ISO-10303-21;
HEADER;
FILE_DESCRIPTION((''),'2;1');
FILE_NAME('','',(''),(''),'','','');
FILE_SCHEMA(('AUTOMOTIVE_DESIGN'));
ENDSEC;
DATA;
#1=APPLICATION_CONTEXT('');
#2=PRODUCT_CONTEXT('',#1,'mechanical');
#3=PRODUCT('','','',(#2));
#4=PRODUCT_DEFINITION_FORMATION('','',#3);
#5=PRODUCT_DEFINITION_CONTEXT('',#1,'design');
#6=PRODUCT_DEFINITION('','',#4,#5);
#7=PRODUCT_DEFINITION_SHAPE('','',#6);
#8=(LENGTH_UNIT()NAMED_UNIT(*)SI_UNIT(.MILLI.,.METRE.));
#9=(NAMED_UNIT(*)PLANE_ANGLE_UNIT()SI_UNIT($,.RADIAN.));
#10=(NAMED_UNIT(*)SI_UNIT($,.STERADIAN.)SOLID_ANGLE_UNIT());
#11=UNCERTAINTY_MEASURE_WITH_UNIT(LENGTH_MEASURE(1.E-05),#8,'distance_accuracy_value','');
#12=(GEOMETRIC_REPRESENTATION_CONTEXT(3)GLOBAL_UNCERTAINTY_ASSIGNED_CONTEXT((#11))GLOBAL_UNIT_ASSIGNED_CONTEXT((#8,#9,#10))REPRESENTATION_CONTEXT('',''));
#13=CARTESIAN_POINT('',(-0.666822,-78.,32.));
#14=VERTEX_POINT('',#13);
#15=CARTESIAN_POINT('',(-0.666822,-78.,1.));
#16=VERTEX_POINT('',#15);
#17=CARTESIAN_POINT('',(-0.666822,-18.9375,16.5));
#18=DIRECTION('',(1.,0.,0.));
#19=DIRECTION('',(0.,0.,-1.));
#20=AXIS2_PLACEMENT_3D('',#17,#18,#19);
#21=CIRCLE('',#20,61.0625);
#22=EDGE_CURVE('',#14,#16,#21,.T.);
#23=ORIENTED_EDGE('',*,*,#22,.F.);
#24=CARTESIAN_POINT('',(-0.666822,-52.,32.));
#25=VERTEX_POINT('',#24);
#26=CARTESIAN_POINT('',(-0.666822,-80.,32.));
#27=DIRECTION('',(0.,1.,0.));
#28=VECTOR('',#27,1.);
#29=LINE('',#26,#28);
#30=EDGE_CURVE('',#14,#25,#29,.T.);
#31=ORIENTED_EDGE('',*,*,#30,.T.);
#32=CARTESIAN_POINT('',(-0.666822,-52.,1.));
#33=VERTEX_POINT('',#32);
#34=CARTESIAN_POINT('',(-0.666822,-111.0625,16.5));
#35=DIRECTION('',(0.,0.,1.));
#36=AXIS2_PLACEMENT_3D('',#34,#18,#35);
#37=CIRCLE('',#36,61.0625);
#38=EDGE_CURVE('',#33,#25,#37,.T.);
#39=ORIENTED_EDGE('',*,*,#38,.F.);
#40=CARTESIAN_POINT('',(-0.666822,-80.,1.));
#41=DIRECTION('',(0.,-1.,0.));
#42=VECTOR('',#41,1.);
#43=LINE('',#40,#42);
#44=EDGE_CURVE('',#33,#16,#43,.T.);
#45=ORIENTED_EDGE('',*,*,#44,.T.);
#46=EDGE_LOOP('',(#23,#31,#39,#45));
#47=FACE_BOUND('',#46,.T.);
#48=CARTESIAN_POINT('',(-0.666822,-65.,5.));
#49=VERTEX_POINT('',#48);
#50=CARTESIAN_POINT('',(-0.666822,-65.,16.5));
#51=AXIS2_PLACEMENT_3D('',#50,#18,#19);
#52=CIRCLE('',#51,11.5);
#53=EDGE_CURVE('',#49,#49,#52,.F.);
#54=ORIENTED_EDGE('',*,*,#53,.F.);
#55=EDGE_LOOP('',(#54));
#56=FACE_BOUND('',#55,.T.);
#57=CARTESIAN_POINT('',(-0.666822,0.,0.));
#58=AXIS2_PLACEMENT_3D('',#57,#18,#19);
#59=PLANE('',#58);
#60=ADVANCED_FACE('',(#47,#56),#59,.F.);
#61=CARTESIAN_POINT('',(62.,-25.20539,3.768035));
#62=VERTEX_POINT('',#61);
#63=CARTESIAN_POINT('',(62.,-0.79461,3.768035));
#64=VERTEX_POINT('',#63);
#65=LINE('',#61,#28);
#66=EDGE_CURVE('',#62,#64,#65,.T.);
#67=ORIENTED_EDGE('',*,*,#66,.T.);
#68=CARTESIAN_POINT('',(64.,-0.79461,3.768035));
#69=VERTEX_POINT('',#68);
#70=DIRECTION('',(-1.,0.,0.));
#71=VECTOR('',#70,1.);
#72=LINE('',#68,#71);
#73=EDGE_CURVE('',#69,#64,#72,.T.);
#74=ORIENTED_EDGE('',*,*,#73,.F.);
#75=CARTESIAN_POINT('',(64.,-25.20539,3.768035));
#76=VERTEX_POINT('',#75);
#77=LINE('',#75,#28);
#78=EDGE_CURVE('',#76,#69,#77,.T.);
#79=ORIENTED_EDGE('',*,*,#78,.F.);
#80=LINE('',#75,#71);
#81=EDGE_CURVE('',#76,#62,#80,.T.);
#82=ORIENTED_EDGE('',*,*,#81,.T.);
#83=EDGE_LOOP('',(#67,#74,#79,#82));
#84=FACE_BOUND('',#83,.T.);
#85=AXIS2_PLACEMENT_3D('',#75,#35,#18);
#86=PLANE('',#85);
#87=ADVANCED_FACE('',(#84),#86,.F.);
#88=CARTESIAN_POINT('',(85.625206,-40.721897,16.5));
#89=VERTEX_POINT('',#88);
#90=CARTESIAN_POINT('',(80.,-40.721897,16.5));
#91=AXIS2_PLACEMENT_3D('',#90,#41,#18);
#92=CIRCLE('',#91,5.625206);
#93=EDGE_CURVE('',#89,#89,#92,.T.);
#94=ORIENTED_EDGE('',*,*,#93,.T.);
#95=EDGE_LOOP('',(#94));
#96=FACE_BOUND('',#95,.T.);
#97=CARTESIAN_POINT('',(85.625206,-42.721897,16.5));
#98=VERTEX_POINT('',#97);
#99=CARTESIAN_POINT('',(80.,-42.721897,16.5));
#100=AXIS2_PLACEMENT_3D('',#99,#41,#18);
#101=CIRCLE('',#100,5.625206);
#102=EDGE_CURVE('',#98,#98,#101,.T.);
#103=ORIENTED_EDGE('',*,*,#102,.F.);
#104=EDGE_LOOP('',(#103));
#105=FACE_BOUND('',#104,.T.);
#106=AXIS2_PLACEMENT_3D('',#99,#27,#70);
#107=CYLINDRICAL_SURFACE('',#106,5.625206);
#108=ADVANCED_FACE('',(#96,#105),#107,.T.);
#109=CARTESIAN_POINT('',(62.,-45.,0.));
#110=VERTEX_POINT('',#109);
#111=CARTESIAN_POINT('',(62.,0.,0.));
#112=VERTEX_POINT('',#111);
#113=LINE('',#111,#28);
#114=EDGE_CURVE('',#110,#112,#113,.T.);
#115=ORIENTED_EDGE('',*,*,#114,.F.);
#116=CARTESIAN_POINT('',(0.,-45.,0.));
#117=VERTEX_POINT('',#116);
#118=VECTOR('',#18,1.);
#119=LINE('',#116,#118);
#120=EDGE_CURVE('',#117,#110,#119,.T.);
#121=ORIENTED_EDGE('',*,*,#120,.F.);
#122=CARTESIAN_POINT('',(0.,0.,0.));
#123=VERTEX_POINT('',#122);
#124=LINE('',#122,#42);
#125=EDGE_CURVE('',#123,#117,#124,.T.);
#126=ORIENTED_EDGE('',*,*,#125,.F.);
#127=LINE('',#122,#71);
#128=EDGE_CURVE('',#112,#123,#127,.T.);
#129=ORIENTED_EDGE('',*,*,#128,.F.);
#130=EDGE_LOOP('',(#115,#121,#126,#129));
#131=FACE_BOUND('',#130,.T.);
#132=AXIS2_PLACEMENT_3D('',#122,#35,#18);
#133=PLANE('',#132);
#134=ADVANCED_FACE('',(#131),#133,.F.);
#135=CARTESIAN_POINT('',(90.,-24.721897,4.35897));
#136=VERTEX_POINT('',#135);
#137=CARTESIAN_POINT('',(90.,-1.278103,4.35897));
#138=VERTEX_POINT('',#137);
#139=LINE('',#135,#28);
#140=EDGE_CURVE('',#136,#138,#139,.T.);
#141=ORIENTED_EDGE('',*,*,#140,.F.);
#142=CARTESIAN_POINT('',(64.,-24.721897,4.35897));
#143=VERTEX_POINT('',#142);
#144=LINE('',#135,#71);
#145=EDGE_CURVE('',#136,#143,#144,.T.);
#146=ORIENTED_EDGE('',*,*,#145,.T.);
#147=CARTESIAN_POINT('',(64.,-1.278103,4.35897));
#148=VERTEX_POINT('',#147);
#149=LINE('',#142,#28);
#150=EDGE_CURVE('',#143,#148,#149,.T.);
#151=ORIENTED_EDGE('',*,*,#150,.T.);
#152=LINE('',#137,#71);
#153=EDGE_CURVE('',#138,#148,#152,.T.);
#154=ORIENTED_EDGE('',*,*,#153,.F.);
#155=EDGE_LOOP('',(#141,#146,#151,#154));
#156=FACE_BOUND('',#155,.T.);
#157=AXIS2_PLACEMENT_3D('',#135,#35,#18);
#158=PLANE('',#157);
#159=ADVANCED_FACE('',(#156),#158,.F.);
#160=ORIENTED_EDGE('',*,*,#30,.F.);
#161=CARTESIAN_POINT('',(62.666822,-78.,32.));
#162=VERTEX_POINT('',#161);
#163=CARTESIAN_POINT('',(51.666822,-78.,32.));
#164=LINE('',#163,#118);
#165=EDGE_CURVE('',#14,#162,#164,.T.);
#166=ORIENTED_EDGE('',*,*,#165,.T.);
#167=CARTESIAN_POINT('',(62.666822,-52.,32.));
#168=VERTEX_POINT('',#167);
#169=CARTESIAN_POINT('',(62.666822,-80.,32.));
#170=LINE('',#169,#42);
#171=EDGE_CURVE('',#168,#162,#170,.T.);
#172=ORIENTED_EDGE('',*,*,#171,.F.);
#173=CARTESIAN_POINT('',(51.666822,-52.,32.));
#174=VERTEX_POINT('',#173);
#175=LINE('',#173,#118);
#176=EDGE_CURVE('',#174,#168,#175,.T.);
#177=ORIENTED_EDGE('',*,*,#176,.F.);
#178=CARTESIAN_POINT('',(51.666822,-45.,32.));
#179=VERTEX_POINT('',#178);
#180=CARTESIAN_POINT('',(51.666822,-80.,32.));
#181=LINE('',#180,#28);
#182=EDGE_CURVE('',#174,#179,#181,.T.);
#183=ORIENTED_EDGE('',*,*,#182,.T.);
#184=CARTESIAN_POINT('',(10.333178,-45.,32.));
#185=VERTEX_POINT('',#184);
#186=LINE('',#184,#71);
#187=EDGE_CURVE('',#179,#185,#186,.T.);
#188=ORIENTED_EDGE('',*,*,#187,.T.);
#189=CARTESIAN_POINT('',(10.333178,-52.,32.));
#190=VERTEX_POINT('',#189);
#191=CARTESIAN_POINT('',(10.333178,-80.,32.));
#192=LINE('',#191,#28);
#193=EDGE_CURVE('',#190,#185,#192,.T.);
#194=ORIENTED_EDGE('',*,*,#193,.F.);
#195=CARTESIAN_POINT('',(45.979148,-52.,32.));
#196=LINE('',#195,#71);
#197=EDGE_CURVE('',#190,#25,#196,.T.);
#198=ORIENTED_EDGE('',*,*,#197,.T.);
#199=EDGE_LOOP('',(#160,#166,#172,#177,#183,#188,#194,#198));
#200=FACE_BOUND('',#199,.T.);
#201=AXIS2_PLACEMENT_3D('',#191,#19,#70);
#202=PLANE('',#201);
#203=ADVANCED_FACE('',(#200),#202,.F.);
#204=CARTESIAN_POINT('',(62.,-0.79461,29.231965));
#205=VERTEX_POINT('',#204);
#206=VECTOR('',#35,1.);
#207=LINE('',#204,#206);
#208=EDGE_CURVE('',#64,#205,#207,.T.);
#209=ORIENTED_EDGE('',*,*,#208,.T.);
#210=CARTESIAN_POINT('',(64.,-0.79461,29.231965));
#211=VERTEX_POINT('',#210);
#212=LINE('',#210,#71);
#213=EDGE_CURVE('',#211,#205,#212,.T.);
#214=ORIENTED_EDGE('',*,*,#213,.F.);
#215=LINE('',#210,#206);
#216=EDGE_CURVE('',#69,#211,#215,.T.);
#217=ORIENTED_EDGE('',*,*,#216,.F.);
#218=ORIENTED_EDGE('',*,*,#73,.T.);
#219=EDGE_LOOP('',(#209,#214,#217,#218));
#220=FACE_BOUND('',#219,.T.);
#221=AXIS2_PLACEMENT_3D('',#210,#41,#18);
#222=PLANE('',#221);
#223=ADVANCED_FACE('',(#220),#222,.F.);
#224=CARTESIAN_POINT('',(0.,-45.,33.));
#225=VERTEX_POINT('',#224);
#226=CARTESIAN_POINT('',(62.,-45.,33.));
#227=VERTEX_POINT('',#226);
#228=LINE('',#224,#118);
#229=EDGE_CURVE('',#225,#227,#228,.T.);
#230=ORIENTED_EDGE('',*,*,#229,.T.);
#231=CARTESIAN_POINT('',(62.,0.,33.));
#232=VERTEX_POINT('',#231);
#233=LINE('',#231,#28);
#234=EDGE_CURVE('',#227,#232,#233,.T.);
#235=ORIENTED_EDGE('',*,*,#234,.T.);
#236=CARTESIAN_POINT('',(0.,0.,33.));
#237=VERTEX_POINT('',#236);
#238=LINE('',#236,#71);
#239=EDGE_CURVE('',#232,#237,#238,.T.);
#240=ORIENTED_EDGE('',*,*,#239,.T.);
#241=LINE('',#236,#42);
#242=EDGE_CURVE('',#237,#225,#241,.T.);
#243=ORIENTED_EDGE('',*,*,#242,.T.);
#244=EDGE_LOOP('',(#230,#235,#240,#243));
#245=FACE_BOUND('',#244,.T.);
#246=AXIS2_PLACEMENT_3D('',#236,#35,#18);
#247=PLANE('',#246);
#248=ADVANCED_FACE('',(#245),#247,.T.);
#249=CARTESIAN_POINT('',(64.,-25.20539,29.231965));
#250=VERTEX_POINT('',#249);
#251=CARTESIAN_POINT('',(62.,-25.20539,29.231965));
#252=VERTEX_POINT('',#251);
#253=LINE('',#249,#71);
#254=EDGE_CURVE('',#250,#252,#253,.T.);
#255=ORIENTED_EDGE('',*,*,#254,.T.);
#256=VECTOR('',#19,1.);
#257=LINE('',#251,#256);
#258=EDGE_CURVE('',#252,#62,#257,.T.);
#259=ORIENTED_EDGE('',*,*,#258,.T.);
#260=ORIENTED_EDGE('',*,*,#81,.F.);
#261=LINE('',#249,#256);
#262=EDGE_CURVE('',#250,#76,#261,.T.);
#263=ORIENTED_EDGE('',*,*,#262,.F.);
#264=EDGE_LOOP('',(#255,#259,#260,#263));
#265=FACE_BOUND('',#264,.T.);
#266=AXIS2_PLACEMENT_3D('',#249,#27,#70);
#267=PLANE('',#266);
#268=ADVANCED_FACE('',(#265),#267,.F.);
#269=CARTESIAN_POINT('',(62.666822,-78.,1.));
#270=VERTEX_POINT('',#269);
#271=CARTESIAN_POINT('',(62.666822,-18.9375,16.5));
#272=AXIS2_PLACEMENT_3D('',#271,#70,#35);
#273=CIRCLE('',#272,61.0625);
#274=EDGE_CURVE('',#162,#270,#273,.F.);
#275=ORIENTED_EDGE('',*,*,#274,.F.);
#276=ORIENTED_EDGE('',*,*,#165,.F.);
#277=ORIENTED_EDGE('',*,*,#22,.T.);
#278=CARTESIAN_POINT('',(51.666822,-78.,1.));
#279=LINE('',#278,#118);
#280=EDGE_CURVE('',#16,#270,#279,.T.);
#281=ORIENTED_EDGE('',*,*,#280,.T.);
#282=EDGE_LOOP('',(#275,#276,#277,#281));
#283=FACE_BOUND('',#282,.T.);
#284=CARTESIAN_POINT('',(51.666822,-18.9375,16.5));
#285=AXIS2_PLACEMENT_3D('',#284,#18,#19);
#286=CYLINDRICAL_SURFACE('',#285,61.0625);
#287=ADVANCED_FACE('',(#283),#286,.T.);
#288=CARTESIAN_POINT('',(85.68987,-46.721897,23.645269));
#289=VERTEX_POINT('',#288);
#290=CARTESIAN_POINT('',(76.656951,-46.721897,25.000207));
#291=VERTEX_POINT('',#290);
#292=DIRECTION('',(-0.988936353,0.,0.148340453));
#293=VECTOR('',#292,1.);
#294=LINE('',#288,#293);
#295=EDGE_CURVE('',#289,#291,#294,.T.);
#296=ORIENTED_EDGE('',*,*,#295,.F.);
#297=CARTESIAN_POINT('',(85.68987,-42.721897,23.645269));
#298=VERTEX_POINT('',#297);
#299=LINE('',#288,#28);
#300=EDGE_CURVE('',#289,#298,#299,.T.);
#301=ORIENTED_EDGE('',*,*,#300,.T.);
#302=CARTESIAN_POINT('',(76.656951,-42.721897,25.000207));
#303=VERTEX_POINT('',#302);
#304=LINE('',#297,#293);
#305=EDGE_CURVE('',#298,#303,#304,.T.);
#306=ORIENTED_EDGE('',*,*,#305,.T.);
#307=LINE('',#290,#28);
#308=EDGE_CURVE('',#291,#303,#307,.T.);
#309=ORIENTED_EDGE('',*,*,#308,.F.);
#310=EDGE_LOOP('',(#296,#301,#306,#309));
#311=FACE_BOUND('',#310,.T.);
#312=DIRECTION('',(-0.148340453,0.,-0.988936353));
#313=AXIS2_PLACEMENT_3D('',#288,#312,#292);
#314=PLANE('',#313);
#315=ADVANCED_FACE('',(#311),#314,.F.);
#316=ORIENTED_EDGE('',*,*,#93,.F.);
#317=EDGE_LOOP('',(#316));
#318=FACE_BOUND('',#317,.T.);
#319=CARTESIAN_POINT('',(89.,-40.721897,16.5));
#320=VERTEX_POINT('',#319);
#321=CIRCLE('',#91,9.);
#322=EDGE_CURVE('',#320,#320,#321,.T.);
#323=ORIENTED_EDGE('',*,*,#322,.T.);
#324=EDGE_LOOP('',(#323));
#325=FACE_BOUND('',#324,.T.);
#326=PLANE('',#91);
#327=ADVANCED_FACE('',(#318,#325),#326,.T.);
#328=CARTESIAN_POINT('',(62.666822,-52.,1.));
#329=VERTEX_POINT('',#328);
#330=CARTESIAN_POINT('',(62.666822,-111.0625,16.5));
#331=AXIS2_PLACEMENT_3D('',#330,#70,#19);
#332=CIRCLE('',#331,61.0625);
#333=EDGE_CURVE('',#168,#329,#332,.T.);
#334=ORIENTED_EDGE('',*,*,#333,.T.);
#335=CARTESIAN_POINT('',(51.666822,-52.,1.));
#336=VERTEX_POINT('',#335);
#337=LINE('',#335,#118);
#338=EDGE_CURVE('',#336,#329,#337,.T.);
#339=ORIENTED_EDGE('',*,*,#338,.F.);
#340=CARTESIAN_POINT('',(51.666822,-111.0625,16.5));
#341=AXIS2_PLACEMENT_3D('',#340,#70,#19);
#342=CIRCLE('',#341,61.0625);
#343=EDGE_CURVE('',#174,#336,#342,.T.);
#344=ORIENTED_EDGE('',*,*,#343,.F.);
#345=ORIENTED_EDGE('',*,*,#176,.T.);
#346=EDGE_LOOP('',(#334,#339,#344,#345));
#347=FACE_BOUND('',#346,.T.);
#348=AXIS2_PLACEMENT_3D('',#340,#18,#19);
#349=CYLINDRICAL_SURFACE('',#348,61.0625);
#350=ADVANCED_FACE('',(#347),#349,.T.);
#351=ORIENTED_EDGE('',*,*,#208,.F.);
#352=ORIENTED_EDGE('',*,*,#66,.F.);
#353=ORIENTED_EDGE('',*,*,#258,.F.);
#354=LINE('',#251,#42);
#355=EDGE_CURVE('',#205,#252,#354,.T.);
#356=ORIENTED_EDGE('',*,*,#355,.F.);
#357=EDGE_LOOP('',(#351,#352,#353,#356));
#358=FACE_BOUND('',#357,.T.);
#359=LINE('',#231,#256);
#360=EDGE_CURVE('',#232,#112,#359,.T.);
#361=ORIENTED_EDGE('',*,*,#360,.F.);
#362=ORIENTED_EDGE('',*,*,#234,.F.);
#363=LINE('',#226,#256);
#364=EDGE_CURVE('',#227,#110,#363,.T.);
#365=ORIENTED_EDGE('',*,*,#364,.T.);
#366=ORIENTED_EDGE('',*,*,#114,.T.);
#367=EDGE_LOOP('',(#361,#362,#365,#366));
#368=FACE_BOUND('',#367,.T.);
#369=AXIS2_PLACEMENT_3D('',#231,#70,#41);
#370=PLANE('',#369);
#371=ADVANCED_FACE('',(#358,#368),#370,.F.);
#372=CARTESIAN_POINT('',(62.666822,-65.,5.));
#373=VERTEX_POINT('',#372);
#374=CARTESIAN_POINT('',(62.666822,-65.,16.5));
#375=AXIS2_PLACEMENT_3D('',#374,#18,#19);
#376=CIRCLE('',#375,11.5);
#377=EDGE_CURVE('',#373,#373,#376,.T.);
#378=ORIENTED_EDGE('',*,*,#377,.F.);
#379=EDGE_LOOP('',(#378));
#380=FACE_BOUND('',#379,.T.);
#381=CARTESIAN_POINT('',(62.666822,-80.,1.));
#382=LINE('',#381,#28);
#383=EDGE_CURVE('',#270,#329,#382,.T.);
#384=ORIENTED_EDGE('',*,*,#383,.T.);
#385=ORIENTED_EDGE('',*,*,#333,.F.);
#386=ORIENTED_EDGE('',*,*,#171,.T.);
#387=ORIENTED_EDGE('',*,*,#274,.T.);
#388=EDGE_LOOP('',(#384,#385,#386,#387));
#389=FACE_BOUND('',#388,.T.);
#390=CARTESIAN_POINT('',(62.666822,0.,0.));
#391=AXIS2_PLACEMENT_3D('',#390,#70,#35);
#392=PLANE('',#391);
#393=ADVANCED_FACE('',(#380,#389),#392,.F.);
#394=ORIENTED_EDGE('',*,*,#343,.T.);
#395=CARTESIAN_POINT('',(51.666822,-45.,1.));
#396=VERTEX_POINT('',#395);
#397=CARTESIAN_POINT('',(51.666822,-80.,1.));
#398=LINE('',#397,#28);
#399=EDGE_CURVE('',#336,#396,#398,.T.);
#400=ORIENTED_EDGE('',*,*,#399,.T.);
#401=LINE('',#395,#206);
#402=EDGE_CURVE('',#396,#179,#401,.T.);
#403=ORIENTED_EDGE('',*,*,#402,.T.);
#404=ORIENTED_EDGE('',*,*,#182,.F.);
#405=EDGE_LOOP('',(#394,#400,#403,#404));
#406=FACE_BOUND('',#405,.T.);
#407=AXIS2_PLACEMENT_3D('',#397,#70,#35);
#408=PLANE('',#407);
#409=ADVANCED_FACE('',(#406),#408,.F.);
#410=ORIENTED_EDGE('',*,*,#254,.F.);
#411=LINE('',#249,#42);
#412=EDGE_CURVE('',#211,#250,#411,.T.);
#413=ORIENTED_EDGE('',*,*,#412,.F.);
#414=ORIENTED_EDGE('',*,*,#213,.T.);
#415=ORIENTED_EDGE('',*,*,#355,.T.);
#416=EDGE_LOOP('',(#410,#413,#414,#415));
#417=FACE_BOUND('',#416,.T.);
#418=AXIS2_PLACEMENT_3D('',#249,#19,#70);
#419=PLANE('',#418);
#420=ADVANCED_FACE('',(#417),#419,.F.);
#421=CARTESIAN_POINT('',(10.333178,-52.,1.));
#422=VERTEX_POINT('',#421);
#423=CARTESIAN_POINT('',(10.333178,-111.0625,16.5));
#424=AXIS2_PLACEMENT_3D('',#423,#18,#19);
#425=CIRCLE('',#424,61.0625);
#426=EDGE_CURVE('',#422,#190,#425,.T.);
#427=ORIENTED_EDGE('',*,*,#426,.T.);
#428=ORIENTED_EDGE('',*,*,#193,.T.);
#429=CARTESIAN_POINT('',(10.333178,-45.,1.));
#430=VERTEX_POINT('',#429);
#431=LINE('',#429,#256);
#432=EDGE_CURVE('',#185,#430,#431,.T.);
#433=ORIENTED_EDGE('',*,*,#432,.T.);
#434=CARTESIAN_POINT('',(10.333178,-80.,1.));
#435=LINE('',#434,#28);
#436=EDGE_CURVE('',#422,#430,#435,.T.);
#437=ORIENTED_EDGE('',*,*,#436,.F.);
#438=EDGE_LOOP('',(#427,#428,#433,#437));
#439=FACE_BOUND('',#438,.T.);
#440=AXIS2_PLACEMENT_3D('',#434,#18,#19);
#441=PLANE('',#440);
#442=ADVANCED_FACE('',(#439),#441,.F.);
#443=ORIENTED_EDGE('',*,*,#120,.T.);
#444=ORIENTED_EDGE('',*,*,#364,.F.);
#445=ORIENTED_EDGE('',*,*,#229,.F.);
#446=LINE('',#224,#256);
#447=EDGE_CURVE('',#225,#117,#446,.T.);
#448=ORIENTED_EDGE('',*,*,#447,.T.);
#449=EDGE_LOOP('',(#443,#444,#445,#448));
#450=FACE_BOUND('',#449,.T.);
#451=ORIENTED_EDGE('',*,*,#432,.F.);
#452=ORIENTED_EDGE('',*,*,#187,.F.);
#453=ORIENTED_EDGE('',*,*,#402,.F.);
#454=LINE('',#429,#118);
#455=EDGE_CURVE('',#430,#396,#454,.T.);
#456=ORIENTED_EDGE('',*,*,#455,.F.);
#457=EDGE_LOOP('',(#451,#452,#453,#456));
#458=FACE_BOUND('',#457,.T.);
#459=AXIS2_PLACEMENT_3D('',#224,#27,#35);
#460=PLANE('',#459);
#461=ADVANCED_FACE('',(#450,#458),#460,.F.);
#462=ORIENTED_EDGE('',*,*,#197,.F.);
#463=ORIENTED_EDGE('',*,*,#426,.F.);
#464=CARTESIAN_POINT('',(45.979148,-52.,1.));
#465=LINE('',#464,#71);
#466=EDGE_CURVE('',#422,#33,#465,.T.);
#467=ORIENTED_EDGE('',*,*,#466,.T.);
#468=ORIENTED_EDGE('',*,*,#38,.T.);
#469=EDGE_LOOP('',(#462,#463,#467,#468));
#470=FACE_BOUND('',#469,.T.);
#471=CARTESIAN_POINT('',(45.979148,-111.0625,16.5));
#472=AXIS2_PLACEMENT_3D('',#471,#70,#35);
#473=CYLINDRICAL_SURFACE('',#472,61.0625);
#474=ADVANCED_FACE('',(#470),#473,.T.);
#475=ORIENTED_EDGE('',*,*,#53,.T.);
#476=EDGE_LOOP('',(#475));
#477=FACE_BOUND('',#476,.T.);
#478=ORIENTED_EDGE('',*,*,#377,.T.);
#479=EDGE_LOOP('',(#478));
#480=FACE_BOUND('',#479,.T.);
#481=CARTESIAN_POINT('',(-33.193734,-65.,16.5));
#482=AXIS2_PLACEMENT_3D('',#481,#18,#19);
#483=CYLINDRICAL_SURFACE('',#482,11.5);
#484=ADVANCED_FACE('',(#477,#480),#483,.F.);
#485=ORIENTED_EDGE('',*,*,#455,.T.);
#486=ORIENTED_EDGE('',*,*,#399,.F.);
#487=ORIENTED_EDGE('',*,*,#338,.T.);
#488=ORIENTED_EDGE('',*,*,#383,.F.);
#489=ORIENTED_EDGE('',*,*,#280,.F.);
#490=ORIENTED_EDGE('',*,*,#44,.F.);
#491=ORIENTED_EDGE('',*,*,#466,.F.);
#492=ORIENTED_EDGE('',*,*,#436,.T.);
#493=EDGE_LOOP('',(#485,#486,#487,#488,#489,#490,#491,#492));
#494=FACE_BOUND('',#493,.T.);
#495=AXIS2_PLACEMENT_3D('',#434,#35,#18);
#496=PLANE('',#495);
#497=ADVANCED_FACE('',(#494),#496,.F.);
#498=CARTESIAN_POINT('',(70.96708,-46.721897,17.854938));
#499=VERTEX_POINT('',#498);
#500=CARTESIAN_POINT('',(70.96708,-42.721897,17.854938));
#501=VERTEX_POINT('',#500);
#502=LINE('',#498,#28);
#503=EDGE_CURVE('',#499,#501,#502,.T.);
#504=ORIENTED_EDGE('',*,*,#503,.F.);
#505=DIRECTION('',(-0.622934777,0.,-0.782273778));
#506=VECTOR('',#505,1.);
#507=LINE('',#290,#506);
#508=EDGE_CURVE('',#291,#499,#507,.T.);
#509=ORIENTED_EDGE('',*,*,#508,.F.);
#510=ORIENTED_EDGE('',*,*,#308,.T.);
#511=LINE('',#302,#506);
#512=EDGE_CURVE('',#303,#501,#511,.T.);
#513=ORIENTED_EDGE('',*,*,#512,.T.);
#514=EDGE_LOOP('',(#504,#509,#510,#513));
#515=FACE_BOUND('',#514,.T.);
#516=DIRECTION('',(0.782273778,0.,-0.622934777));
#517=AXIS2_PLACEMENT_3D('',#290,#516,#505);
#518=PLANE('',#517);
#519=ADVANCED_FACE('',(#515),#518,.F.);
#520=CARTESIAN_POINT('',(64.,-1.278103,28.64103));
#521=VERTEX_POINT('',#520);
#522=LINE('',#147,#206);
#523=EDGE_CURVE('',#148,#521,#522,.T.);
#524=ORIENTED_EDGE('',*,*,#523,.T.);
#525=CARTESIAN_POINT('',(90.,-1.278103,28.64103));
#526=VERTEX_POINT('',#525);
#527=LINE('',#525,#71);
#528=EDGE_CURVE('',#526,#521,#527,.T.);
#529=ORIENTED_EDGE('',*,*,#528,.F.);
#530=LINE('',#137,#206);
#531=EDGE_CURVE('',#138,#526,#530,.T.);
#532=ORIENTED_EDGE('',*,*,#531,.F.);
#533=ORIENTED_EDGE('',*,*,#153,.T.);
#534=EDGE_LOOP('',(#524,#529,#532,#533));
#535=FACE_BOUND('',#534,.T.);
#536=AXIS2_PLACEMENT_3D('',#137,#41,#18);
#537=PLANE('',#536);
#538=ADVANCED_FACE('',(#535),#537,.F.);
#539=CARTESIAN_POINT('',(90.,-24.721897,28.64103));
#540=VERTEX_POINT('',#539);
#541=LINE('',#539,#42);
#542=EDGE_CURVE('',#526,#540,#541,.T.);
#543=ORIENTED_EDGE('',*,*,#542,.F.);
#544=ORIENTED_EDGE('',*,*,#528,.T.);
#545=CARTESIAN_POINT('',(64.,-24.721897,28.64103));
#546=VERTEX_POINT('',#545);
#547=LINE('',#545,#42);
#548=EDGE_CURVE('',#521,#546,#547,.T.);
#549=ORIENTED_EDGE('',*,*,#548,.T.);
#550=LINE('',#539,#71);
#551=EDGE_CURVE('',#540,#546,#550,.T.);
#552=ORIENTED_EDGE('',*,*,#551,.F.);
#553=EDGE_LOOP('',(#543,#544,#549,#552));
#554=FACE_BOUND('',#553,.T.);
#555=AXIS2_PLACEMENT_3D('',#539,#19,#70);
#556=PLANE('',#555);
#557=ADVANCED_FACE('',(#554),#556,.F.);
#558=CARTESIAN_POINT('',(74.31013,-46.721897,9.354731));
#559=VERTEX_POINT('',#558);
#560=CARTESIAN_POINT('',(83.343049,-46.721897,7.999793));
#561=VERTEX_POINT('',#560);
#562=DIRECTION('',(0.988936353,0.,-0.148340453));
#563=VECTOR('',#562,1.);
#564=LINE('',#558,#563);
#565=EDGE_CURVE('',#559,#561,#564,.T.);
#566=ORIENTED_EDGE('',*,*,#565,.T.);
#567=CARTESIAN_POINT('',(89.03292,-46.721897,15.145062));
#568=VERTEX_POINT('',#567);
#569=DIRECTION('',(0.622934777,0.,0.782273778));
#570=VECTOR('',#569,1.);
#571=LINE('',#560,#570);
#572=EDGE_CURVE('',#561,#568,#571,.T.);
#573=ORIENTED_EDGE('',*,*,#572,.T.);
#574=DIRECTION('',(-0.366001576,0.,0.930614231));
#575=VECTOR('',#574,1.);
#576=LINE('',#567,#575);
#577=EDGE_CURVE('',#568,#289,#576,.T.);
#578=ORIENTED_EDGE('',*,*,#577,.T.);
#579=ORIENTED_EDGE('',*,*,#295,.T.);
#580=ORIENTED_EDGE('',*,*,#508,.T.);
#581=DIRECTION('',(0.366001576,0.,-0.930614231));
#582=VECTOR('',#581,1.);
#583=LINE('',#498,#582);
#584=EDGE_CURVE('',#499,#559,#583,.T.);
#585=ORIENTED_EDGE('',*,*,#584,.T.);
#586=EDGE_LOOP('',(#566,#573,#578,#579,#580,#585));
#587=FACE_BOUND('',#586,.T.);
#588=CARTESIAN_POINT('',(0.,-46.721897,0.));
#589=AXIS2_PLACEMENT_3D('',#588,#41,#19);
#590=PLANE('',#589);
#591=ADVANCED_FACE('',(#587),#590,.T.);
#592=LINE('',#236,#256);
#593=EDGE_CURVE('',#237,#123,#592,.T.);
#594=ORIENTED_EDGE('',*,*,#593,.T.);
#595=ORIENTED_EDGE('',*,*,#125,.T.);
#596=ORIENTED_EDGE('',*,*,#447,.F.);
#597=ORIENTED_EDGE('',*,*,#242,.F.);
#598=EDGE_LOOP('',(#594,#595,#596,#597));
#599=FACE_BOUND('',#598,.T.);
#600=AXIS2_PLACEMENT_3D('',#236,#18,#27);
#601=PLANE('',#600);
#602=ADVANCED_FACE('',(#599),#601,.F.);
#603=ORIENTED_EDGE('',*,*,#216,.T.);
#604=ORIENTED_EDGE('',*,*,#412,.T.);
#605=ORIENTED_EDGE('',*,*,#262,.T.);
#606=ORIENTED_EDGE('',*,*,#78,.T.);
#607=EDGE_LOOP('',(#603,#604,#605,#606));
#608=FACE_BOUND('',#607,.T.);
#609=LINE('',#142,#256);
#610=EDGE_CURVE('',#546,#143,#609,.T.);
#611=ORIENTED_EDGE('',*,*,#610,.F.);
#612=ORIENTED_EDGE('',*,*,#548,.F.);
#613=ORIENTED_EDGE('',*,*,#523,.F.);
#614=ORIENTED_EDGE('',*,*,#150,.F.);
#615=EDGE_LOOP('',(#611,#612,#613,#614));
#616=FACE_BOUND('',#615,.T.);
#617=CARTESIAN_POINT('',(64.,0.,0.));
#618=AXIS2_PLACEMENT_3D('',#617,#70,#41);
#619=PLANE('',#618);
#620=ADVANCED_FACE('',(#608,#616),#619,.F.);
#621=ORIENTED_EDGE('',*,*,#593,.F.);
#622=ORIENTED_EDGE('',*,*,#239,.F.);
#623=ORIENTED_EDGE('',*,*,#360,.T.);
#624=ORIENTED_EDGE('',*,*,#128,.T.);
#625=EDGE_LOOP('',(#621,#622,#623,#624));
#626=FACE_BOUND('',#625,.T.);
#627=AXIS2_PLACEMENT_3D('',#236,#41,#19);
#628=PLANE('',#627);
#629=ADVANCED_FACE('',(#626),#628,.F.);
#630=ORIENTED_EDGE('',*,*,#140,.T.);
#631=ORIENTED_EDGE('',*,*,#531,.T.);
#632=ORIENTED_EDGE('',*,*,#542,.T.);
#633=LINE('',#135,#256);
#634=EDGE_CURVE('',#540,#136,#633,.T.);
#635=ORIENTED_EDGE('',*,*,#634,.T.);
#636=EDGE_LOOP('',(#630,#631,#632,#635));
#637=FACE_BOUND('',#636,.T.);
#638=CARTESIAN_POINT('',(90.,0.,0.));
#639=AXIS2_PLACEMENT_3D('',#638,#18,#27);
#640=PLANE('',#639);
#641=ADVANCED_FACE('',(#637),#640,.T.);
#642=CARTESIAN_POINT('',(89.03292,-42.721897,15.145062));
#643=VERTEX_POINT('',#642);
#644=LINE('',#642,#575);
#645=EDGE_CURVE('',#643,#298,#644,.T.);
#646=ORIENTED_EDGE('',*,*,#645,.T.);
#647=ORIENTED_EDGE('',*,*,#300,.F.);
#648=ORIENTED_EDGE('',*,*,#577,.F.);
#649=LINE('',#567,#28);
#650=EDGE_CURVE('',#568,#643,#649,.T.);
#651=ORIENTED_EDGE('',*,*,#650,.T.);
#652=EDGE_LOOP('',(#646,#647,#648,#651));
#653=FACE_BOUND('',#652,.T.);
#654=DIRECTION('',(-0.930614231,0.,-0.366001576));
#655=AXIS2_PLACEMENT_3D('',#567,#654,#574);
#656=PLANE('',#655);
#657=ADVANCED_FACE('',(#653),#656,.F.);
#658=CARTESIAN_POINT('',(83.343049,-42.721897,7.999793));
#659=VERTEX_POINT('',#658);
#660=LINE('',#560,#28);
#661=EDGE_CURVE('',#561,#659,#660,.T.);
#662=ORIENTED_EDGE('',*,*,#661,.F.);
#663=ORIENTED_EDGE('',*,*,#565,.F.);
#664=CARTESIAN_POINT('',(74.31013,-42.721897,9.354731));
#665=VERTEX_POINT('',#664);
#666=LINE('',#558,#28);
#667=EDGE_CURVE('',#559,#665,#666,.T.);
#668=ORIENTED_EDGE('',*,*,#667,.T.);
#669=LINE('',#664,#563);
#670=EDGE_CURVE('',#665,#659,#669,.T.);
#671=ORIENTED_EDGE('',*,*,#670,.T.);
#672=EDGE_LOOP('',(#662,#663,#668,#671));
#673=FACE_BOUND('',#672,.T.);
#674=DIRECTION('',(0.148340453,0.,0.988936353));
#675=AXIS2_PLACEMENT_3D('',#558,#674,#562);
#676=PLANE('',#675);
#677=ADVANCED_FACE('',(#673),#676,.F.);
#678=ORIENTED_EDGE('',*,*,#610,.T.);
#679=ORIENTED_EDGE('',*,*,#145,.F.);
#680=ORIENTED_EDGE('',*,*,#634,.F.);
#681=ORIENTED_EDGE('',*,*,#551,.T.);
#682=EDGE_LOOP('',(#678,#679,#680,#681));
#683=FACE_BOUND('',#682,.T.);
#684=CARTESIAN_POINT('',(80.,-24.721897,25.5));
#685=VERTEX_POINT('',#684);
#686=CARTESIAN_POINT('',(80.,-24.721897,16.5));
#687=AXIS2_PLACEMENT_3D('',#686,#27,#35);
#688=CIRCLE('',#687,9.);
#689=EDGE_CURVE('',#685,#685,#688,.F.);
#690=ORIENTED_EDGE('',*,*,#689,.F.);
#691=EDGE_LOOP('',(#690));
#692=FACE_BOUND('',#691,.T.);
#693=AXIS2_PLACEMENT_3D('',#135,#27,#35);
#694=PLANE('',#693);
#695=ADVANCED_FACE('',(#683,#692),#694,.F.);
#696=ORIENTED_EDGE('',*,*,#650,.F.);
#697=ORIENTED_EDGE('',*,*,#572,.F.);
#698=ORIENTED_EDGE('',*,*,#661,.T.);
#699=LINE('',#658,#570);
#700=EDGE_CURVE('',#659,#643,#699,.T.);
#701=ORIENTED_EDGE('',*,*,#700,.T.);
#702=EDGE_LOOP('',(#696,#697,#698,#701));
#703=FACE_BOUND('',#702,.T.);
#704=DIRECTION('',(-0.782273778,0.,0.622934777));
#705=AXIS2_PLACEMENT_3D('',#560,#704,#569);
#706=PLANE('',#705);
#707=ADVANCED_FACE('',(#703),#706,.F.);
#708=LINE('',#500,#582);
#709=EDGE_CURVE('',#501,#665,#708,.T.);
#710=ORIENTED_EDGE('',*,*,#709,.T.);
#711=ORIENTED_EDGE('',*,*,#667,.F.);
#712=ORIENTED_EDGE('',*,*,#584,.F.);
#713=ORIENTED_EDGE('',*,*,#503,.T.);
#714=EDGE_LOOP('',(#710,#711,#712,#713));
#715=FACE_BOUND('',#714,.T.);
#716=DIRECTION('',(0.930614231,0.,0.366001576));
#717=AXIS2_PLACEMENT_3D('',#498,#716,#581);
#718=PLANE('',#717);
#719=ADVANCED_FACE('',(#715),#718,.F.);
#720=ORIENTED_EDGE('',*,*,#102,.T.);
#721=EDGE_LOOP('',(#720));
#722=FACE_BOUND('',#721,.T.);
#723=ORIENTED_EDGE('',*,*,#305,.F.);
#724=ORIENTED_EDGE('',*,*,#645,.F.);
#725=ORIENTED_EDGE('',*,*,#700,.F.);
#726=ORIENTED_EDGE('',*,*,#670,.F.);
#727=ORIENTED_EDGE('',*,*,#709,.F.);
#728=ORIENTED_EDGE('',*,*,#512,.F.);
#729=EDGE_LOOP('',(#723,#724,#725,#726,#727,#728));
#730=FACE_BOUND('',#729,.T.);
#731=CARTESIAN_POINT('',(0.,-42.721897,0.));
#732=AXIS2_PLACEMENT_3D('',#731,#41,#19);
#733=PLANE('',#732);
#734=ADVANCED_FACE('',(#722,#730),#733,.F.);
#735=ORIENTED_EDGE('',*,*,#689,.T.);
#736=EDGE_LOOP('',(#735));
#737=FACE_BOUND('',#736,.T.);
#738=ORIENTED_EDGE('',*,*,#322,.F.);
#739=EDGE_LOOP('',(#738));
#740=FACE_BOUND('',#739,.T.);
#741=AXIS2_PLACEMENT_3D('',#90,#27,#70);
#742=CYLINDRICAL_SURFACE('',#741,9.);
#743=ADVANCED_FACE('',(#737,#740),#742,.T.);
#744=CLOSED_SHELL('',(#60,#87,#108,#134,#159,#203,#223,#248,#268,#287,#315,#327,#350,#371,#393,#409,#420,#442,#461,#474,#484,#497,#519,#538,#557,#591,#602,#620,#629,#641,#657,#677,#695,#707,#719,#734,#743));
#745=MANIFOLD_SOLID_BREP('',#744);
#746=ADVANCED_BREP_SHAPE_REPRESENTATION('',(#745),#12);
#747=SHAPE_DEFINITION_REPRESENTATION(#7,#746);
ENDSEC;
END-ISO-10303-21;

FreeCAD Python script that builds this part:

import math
import FreeCAD as App
import Part
import Sketcher

V = App.Vector
Q = App.Units.Quantity

doc = App.newDocument("Part")
body = doc.addObject("PartDesign::Body", "Body")

sketch1 = body.newObject("Sketcher::SketchObject", "Sketch")
sketch1.AttachmentSupport = (doc.getObject("XY_Plane"), [""])
sketch1.MapMode = "FlatFace"
sketch1.addGeometry([
    Part.LineSegment(V(0, 0, 0), V(0, -45, 0)),
    Part.LineSegment(V(0, -45, 0), V(62, -45, 0)),
    Part.LineSegment(V(62, -45, 0), V(62, 0, 0)),
    Part.LineSegment(V(62, 0, 0), V(0, 0, 0)),
], False)
sketch1.addConstraint([
    Sketcher.Constraint("Coincident", 0, 2, 1, 1),
    Sketcher.Constraint("Coincident", 1, 2, 2, 1),
    Sketcher.Constraint("Coincident", 2, 2, 3, 1),
    Sketcher.Constraint("Coincident", 3, 2, 0, 1),
    Sketcher.Constraint("Vertical", 0),
    Sketcher.Constraint("Horizontal", 1),
    Sketcher.Constraint("Vertical", 2),
    Sketcher.Constraint("Horizontal", 3),
    Sketcher.Constraint("Coincident", 3, 2, -1, 1),
    Sketcher.Constraint("DistanceX", 1, 1, 1, 2, Q("62 mm")),
    Sketcher.Constraint("DistanceY", 0, 2, 0, 1, Q("45 mm")),
])
pad1 = body.newObject("PartDesign::Pad", "Pad")
pad1.Profile = sketch1
pad1.Length = 33

sketch2 = body.newObject("Sketcher::SketchObject", "Sketch001")
sketch2.AttachmentSupport = (doc.getObject("YZ_Plane"), [""])
sketch2.MapMode = "FlatFace"
sketch2.AttachmentOffset = App.Placement(V(0, 0, 62), App.Rotation())
sketch2.addGeometry([
    Part.LineSegment(V(-1, 29, 0), V(-25, 29, 0)),
    Part.LineSegment(V(-25, 29, 0), V(-25, 4, 0)),
    Part.LineSegment(V(-25, 4, 0), V(-1, 4, 0)),
    Part.LineSegment(V(-1, 4, 0), V(-1, 29, 0)),
], False)
sketch2.addConstraint([
    Sketcher.Constraint("Coincident", 0, 2, 1, 1),
    Sketcher.Constraint("Coincident", 1, 2, 2, 1),
    Sketcher.Constraint("Coincident", 2, 2, 3, 1),
    Sketcher.Constraint("Coincident", 3, 2, 0, 1),
    Sketcher.Constraint("Horizontal", 0),
    Sketcher.Constraint("Vertical", 1),
    Sketcher.Constraint("Horizontal", 2),
    Sketcher.Constraint("Vertical", 3),
    Sketcher.Constraint("DistanceX", 0, 2, 0, 1, Q("24.410779 mm")),
    Sketcher.Constraint("DistanceY", 1, 2, 1, 1, Q("25.463929 mm")),
    Sketcher.Constraint("DistanceX", 0, 2, -1, 1, Q("25.20539 mm")),
    Sketcher.Constraint("DistanceY", -1, 1, 0, 2, Q("29.231965 mm")),
])
pad2 = body.newObject("PartDesign::Pad", "Pad001")
pad2.Profile = sketch2
pad2.Length = 2

sketch3 = body.newObject("Sketcher::SketchObject", "Sketch002")
sketch3.AttachmentSupport = (doc.getObject("YZ_Plane"), [""])
sketch3.MapMode = "FlatFace"
sketch3.AttachmentOffset = App.Placement(V(0, 0, 64), App.Rotation())
sketch3.addGeometry([
    Part.LineSegment(V(-1, 29, 0), V(-25, 29, 0)),
    Part.LineSegment(V(-25, 29, 0), V(-25, 4, 0)),
    Part.LineSegment(V(-25, 4, 0), V(-1, 4, 0)),
    Part.LineSegment(V(-1, 4, 0), V(-1, 29, 0)),
], False)
sketch3.addConstraint([
    Sketcher.Constraint("Coincident", 0, 2, 1, 1),
    Sketcher.Constraint("Coincident", 1, 2, 2, 1),
    Sketcher.Constraint("Coincident", 2, 2, 3, 1),
    Sketcher.Constraint("Coincident", 3, 2, 0, 1),
    Sketcher.Constraint("Horizontal", 0),
    Sketcher.Constraint("Vertical", 1),
    Sketcher.Constraint("Horizontal", 2),
    Sketcher.Constraint("Vertical", 3),
    Sketcher.Constraint("DistanceY", 1, 2, 1, 1, Q("24.282059 mm")),
    Sketcher.Constraint("DistanceX", 0, 2, 0, 1, Q("23.443795 mm")),
    Sketcher.Constraint("DistanceY", -1, 1, 0, 2, Q("28.64103 mm")),
    Sketcher.Constraint("DistanceX", 0, 2, -1, 1, Q("24.721897 mm")),
])
pad3 = body.newObject("PartDesign::Pad", "Pad002")
pad3.Profile = sketch3
pad3.Length = 26

sketch4 = body.newObject("Sketcher::SketchObject", "Sketch003")
sketch4.AttachmentSupport = (doc.getObject("XZ_Plane"), [""])
sketch4.MapMode = "FlatFace"
sketch4.AttachmentOffset = App.Placement(V(0, 0, 45), App.Rotation())
sketch4.addGeometry([
    Part.LineSegment(V(10, 32, 0), V(10, 1, 0)),
    Part.LineSegment(V(10, 1, 0), V(52, 1, 0)),
    Part.LineSegment(V(52, 1, 0), V(52, 32, 0)),
    Part.LineSegment(V(52, 32, 0), V(10, 32, 0)),
], False)
sketch4.addConstraint([
    Sketcher.Constraint("Coincident", 0, 2, 1, 1),
    Sketcher.Constraint("Coincident", 1, 2, 2, 1),
    Sketcher.Constraint("Coincident", 2, 2, 3, 1),
    Sketcher.Constraint("Coincident", 3, 2, 0, 1),
    Sketcher.Constraint("Vertical", 0),
    Sketcher.Constraint("Horizontal", 1),
    Sketcher.Constraint("Vertical", 2),
    Sketcher.Constraint("Horizontal", 3),
    Sketcher.Constraint("DistanceY", 0, 2, 0, 1, Q("31 mm")),
    Sketcher.Constraint("DistanceY", -1, 1, 0, 2, Q("1 mm")),
    Sketcher.Constraint("DistanceX", 1, 1, 1, 2, Q("41.333644 mm")),
    Sketcher.Constraint("DistanceX", -1, 1, 0, 2, Q("10.333178 mm")),
])
pad4 = body.newObject("PartDesign::Pad", "Pad003")
pad4.Profile = sketch4
pad4.Length = 35

sketch5 = body.newObject("Sketcher::SketchObject", "Sketch004")
sketch5.AttachmentSupport = (doc.getObject("YZ_Plane"), [""])
sketch5.MapMode = "FlatFace"
sketch5.AttachmentOffset = App.Placement(V(0, 0, 51.666822), App.Rotation())
sketch5.addGeometry([
    Part.LineSegment(V(-50, 32, 0), V(-80, 32, 0)),
    Part.LineSegment(V(-80, 32, 0), V(-80, 1, 0)),
    Part.LineSegment(V(-80, 1, 0), V(-50, 1, 0)),
    Part.LineSegment(V(-50, 1, 0), V(-50, 32, 0)),
], False)
sketch5.addConstraint([
    Sketcher.Constraint("Coincident", 0, 2, 1, 1),
    Sketcher.Constraint("Coincident", 1, 2, 2, 1),
    Sketcher.Constraint("Coincident", 2, 2, 3, 1),
    Sketcher.Constraint("Coincident", 3, 2, 0, 1),
    Sketcher.Constraint("Horizontal", 0),
    Sketcher.Constraint("Vertical", 1),
    Sketcher.Constraint("Horizontal", 2),
    Sketcher.Constraint("Vertical", 3),
    Sketcher.Constraint("DistanceX", 0, 2, 0, 1, Q("30 mm")),
    Sketcher.Constraint("DistanceY", 1, 2, 1, 1, Q("31 mm")),
    Sketcher.Constraint("DistanceX", 0, 2, -1, 1, Q("80 mm")),
    Sketcher.Constraint("DistanceY", -1, 1, 0, 2, Q("32 mm")),
])
pad5 = body.newObject("PartDesign::Pad", "Pad004")
pad5.Profile = sketch5
pad5.Length = 11

sketch6 = body.newObject("Sketcher::SketchObject", "Sketch005")
sketch6.AttachmentSupport = (doc.getObject("YZ_Plane"), [""])
sketch6.MapMode = "FlatFace"
sketch6.AttachmentOffset = App.Placement(V(0, 0, 10.333178), App.Rotation())
sketch6.addGeometry([
    Part.LineSegment(V(-50, 1, 0), V(-80, 1, 0)),
    Part.LineSegment(V(-80, 1, 0), V(-80, 32, 0)),
    Part.LineSegment(V(-80, 32, 0), V(-50, 32, 0)),
    Part.LineSegment(V(-50, 32, 0), V(-50, 1, 0)),
], False)
sketch6.addConstraint([
    Sketcher.Constraint("Coincident", 0, 2, 1, 1),
    Sketcher.Constraint("Coincident", 1, 2, 2, 1),
    Sketcher.Constraint("Coincident", 2, 2, 3, 1),
    Sketcher.Constraint("Coincident", 3, 2, 0, 1),
    Sketcher.Constraint("Horizontal", 0),
    Sketcher.Constraint("Vertical", 1),
    Sketcher.Constraint("Horizontal", 2),
    Sketcher.Constraint("Vertical", 3),
    Sketcher.Constraint("DistanceX", 0, 2, 0, 1, Q("30 mm")),
    Sketcher.Constraint("DistanceY", 1, 1, 1, 2, Q("31 mm")),
    Sketcher.Constraint("DistanceX", 0, 2, -1, 1, Q("80 mm")),
    Sketcher.Constraint("DistanceY", -1, 1, 0, 2, Q("1 mm")),
])
pad6 = body.newObject("PartDesign::Pad", "Pad005")
pad6.Profile = sketch6
pad6.Length = 11
pad6.Reversed = True

sketch7 = body.newObject("Sketcher::SketchObject", "Sketch006")
sketch7.AttachmentSupport = (doc.getObject("YZ_Plane"), [""])
sketch7.MapMode = "FlatFace"
sketch7.AttachmentOffset = App.Placement(V(0, 0, 62.666822), App.Rotation())
sketch7.addGeometry([
    Part.LineSegment(V(-78, 32, 0), V(-80, 32, 0)),
    Part.LineSegment(V(-80, 32, 0), V(-83.986798, 24.986568, 0)),
    Part.LineSegment(V(-83.986798, 24.986568, 0), V(-84.279445, 8.695872, 0)),
    Part.LineSegment(V(-84.279445, 8.695872, 0), V(-81.993399, 0.274135, 0)),
    Part.LineSegment(V(-81.993399, 0.274135, 0), V(-80.475031, -0.92897, 0)),
    Part.LineSegment(V(-80.475031, -0.92897, 0), V(-78, 1, 0)),
    Part.ArcOfCircle(Part.Circle(V(-18.9375, 16.5, 0), V(0, 0, 1), 61.0625), math.radians(165.295241), math.radians(194.704759)),
    Part.LineSegment(V(-49.931263, 33.723094, 0), V(-52, 32, 0)),
    Part.ArcOfCircle(Part.Circle(V(-111.0625, 16.5, 0), V(0, 0, 1), 61.0625), math.radians(-14.704759), math.radians(14.704759)),
    Part.LineSegment(V(-52, 1, 0), V(-49, 0, 0)),
    Part.LineSegment(V(-49, 0, 0), V(-48.071517, 0, 0)),
    Part.LineSegment(V(-48.071517, 0, 0), V(-47.311645, 10.133211, 0)),
    Part.LineSegment(V(-47.311645, 10.133211, 0), V(-46.725363, 17.951537, 0)),
    Part.LineSegment(V(-46.725363, 17.951537, 0), V(-47.311645, 30.905309, 0)),
    Part.LineSegment(V(-47.311645, 30.905309, 0), V(-47.788492, 34.225322, 0)),
    Part.LineSegment(V(-47.788492, 34.225322, 0), V(-49.931263, 33.723094, 0)),
], False)
sketch7.addConstraint([
    Sketcher.Constraint("Coincident", 0, 2, 1, 1),
    Sketcher.Constraint("Coincident", 1, 2, 2, 1),
    Sketcher.Constraint("Coincident", 2, 2, 3, 1),
    Sketcher.Constraint("Coincident", 3, 2, 4, 1),
    Sketcher.Constraint("Coincident", 4, 2, 5, 1),
    Sketcher.Constraint("Coincident", 5, 2, 6, 2),
    Sketcher.Constraint("Coincident", 6, 1, 0, 1),
    Sketcher.Constraint("Coincident", 7, 2, 8, 2),
    Sketcher.Constraint("Coincident", 8, 1, 9, 1),
    Sketcher.Constraint("Coincident", 9, 2, 10, 1),
    Sketcher.Constraint("Coincident", 10, 2, 11, 1),
    Sketcher.Constraint("Coincident", 11, 2, 12, 1),
    Sketcher.Constraint("Coincident", 12, 2, 13, 1),
    Sketcher.Constraint("Coincident", 13, 2, 14, 1),
    Sketcher.Constraint("Coincident", 14, 2, 15, 1),
    Sketcher.Constraint("Coincident", 15, 2, 7, 1),
    Sketcher.Constraint("Horizontal", 0),
    Sketcher.Constraint("Horizontal", 10),
    Sketcher.Constraint("Equal", 6, 8),
    Sketcher.Constraint("PointOnObject", 9, 2, -1),
    Sketcher.Constraint("Parallel", 11, 12),
    Sketcher.Constraint("Horizontal", 6, 3, 8, 3),
    Sketcher.Constraint("Horizontal", 6, 1, 7, 2),
    Sketcher.Constraint("Horizontal", 5, 2, 8, 1),
    Sketcher.Constraint("Vertical", 5, 2, 6, 1),
    Sketcher.Constraint("Vertical", 11, 2, 13, 2),
    Sketcher.Constraint("DistanceX", 0, 2, 0, 1, Q("2 mm")),
    Sketcher.Constraint("DistanceX", 0, 2, -1, 1, Q("80 mm")),
    Sketcher.Constraint("DistanceY", -1, 1, 0, 2, Q("32 mm")),
    Sketcher.Constraint("DistanceY", -1, 1, 5, 2, Q("1 mm")),
    Sketcher.Constraint("DistanceX", 7, 2, -1, 1, Q("52 mm")),
    Sketcher.Constraint("DistanceX", 9, 2, -1, 1, Q("49 mm")),
    Sketcher.Constraint("Radius", 6, Q("61.0625 mm")),
    Sketcher.Constraint("DistanceX", 1, 2, -1, 1, Q("83.986798 mm")),
    Sketcher.Constraint("DistanceX", 3, 2, -1, 1, Q("81.993399 mm")),
    Sketcher.Constraint("DistanceX", 15, 2, 12, 2, Q("3.205901 mm")),
    Sketcher.Constraint("Distance", 1, Q("8.067391 mm")),
    Sketcher.Constraint("Distance", 3, Q("8.726492 mm")),
    Sketcher.Constraint("Distance", 4, Q("1.937241 mm")),
    Sketcher.Constraint("Distance", 11, Q("10.161662 mm")),
    Sketcher.Constraint("Distance", 15, Q("2.200841 mm")),
    Sketcher.Constraint("DistanceX", 10, 1, 10, 2, Q("0.928483 mm")),
    Sketcher.Constraint("DistanceX", 4, 2, -1, 1, Q("80.475031 mm")),
    Sketcher.Constraint("DistanceY", 4, 2, -1, 1, Q("0.92897 mm")),
    Sketcher.Constraint("DistanceY", -1, 1, 11, 2, Q("10.133211 mm")),
    Sketcher.Constraint("DistanceY", -1, 1, 13, 2, Q("30.905309 mm")),
    Sketcher.Constraint("DistanceX", 14, 2, -1, 1, Q("47.788492 mm")),
    Sketcher.Constraint("DistanceX", 14, 2, 12, 2, Q("1.063129 mm")),
    Sketcher.Constraint("DistanceY", 11, 2, 14, 2, Q("24.092111 mm")),
    Sketcher.Constraint("Distance", 2, Q("16.293324 mm")),
])
pocket1 = body.newObject("PartDesign::Pocket", "Pocket")
pocket1.Profile = sketch7
pocket1.Length = 11

sketch8 = body.newObject("Sketcher::SketchObject", "Sketch007")
sketch8.AttachmentSupport = (doc.getObject("YZ_Plane"), [""])
sketch8.MapMode = "FlatFace"
sketch8.AttachmentOffset = App.Placement(V(0, 0, 51.666822), App.Rotation())
sketch8.addGeometry([
    Part.LineSegment(V(-78, 32, 0), V(-80, 33.5, 0)),
    Part.LineSegment(V(-80, 33.5, 0), V(-82.9, 33.5, 0)),
    Part.LineSegment(V(-82.9, 33.5, 0), V(-84.4, 32, 0)),
    Part.LineSegment(V(-84.4, 32, 0), V(-85.7, 22.6, 0)),
    Part.LineSegment(V(-85.7, 22.6, 0), V(-85.7, 14.4, 0)),
    Part.LineSegment(V(-85.7, 14.4, 0), V(-85, 8.5, 0)),
    Part.LineSegment(V(-85, 8.5, 0), V(-84.4, 1, 0)),
    Part.LineSegment(V(-84.4, 1, 0), V(-82.6, -0.8, 0)),
    Part.LineSegment(V(-82.6, -0.8, 0), V(-80.5, -1.5, 0)),
    Part.LineSegment(V(-80.5, -1.5, 0), V(-79, -1.5, 0)),
    Part.LineSegment(V(-79, -1.5, 0), V(-78, 1, 0)),
    Part.ArcOfCircle(Part.Circle(V(-18.9, 16.5, 0), V(0, 0, 1), 61.1), math.radians(165), math.radians(195)),
], False)
sketch8.addConstraint([
    Sketcher.Constraint("Coincident", 0, 2, 1, 1),
    Sketcher.Constraint("Coincident", 1, 2, 2, 1),
    Sketcher.Constraint("Coincident", 2, 2, 3, 1),
    Sketcher.Constraint("Coincident", 3, 2, 4, 1),
    Sketcher.Constraint("Coincident", 4, 2, 5, 1),
    Sketcher.Constraint("Coincident", 5, 2, 6, 1),
    Sketcher.Constraint("Coincident", 6, 2, 7, 1),
    Sketcher.Constraint("Coincident", 7, 2, 8, 1),
    Sketcher.Constraint("Coincident", 8, 2, 9, 1),
    Sketcher.Constraint("Coincident", 9, 2, 10, 1),
    Sketcher.Constraint("Coincident", 10, 2, 11, 2),
    Sketcher.Constraint("Coincident", 11, 1, 0, 1),
    Sketcher.Constraint("Horizontal", 1),
    Sketcher.Constraint("Vertical", 4),
    Sketcher.Constraint("Horizontal", 9),
    Sketcher.Constraint("Perpendicular", 2, 7),
    Sketcher.Constraint("Horizontal", 6, 2, 10, 2),
    Sketcher.Constraint("Horizontal", 2, 2, 11, 1),
    Sketcher.Constraint("Vertical", 2, 2, 6, 2),
    Sketcher.Constraint("Vertical", 10, 2, 11, 1),
    Sketcher.Constraint("Angle", 2, Q("-135 deg")),
    Sketcher.Constraint("DistanceX", 0, 2, -1, 1, Q("80 mm")),
    Sketcher.Constraint("DistanceY", -1, 1, 2, 2, Q("32 mm")),
    Sketcher.Constraint("DistanceY", -1, 1, 6, 2, Q("1 mm")),
    Sketcher.Constraint("DistanceX", 9, 2, -1, 1, Q("79 mm")),
    Sketcher.Constraint("DistanceX", 10, 2, -1, 1, Q("78 mm")),
    Sketcher.Constraint("Radius", 11, Q("61.0625 mm")),
    Sketcher.Constraint("DistanceX", 9, 1, 9, 2, Q("1.483221 mm")),
    Sketcher.Constraint("Distance", 7, Q("2.50198 mm")),
    Sketcher.Constraint("DistanceX", 1, 2, 1, 1, Q("2.886988 mm")),
    Sketcher.Constraint("DistanceY", 4, 2, 4, 1, Q("8.223413 mm")),
    Sketcher.Constraint("DistanceY", -1, 1, 3, 2, Q("22.575228 mm")),
    Sketcher.Constraint("DistanceX", 5, 2, -1, 1, Q("85.048532 mm")),
    Sketcher.Constraint("DistanceY", -1, 1, 5, 2, Q("8.532169 mm")),
    Sketcher.Constraint("DistanceX", 7, 2, -1, 1, Q("82.615428 mm")),
    Sketcher.Constraint("DistanceY", 8, 2, -1, 1, Q("1.46244 mm")),
    Sketcher.Constraint("DistanceX", 3, 2, 1, 2, Q("2.82548 mm")),
])
pocket2 = body.newObject("PartDesign::Pocket", "Pocket001")
pocket2.Profile = sketch8
pocket2.Length = 52.333644

sketch9 = body.newObject("Sketcher::SketchObject", "Sketch008")
sketch9.AttachmentSupport = (doc.getObject("YZ_Plane"), [""])
sketch9.MapMode = "FlatFace"
sketch9.AttachmentOffset = App.Placement(V(0, 0, 10.333178), App.Rotation())
sketch9.addGeometry([
    Part.LineSegment(V(-52, 32, 0), V(-49.3, 34.2, 0)),
    Part.LineSegment(V(-49.3, 34.2, 0), V(-47.2, 33.1, 0)),
    Part.LineSegment(V(-47.2, 33.1, 0), V(-46.7, 22.6, 0)),
    Part.LineSegment(V(-46.7, 22.6, 0), V(-47.6, 7.1, 0)),
    Part.LineSegment(V(-47.6, 7.1, 0), V(-48.2, -1.1, 0)),
    Part.LineSegment(V(-48.2, -1.1, 0), V(-52, 1, 0)),
    Part.ArcOfCircle(Part.Circle(V(-111.1, 16.5, 0), V(0, 0, 1), 61.1), math.radians(-15), math.radians(15)),
], False)
sketch9.addConstraint([
    Sketcher.Constraint("Coincident", 0, 2, 1, 1),
    Sketcher.Constraint("Coincident", 1, 2, 2, 1),
    Sketcher.Constraint("Coincident", 2, 2, 3, 1),
    Sketcher.Constraint("Coincident", 3, 2, 4, 1),
    Sketcher.Constraint("Coincident", 4, 2, 5, 1),
    Sketcher.Constraint("Coincident", 5, 2, 6, 1),
    Sketcher.Constraint("Coincident", 6, 2, 0, 1),
    Sketcher.Constraint("Vertical", 5, 2, 6, 2),
    Sketcher.Constraint("DistanceX", 5, 2, -1, 1, Q("52 mm")),
    Sketcher.Constraint("DistanceY", -1, 1, 5, 2, Q("1 mm")),
    Sketcher.Constraint("DistanceY", -1, 1, 6, 2, Q("32 mm")),
    Sketcher.Constraint("Radius", 6, Q("61.0625 mm")),
    Sketcher.Constraint("DistanceX", 1, 2, -1, 1, Q("47.196 mm")),
    Sketcher.Constraint("DistanceY", -1, 1, 0, 2, Q("34.151499 mm")),
    Sketcher.Constraint("DistanceX", 0, 2, 2, 2, Q("2.574699 mm")),
    Sketcher.Constraint("Distance", 2, Q("10.504541 mm")),
    Sketcher.Constraint("DistanceY", -1, 1, 1, 2, Q("33.07575 mm")),
    Sketcher.Constraint("DistanceX", 3, 2, -1, 1, Q("47.631161 mm")),
    Sketcher.Constraint("DistanceY", 3, 2, 2, 2, Q("15.484459 mm")),
    Sketcher.Constraint("DistanceX", 0, 2, 3, 2, Q("1.631852 mm")),
    Sketcher.Constraint("DistanceY", 4, 2, 3, 2, Q("8.195522 mm")),
    Sketcher.Constraint("Distance", 4, Q("8.217335 mm")),
])
pocket3 = body.newObject("PartDesign::Pocket", "Pocket002")
pocket3.Profile = sketch9
pocket3.Length = 11

sketch10 = body.newObject("Sketcher::SketchObject", "Sketch009")
sketch10.AttachmentSupport = (doc.getObject("XZ_Plane"), [""])
sketch10.MapMode = "FlatFace"
sketch10.AttachmentOffset = App.Placement(V(0, 0, 24.721897), App.Rotation())
sketch10.addGeometry(Part.Circle(V(80, 16, 0), V(0, 0, 1), 9), False)
sketch10.addConstraint([
    Sketcher.Constraint("Diameter", 0, Q("18 mm")),
    Sketcher.Constraint("DistanceX", -1, 1, 0, 3, Q("80 mm")),
    Sketcher.Constraint("DistanceY", -1, 1, 0, 3, Q("16.5 mm")),
])
pad7 = body.newObject("PartDesign::Pad", "Pad006")
pad7.Profile = sketch10
pad7.Length = 16

sketch11 = body.newObject("Sketcher::SketchObject", "Sketch010")
sketch11.AttachmentSupport = (doc.getObject("XZ_Plane"), [""])
sketch11.MapMode = "FlatFace"
sketch11.AttachmentOffset = App.Placement(V(0, 0, 40.721897), App.Rotation())
sketch11.addGeometry(Part.Circle(V(80, 16, 0), V(0, 0, 1), 6), False)
sketch11.addConstraint([
    Sketcher.Constraint("DistanceX", -1, 1, 0, 3, Q("80 mm")),
    Sketcher.Constraint("DistanceY", -1, 1, 0, 3, Q("16.5 mm")),
    Sketcher.Constraint("Diameter", 0, Q("11.250411 mm")),
])
pad8 = body.newObject("PartDesign::Pad", "Pad007")
pad8.Profile = sketch11
pad8.Length = 2

sketch12 = body.newObject("Sketcher::SketchObject", "Sketch011")
sketch12.AttachmentSupport = (doc.getObject("XZ_Plane"), [""])
sketch12.MapMode = "FlatFace"
sketch12.AttachmentOffset = App.Placement(V(0, 0, 42.721897), App.Rotation())
sketch12.addGeometry([
    Part.LineSegment(V(89, 15, 0), V(86, 24, 0)),
    Part.LineSegment(V(86, 24, 0), V(77, 25, 0)),
    Part.LineSegment(V(77, 25, 0), V(71, 18, 0)),
    Part.LineSegment(V(71, 18, 0), V(74, 9, 0)),
    Part.LineSegment(V(74, 9, 0), V(83, 8, 0)),
    Part.LineSegment(V(83, 8, 0), V(89, 15, 0)),
], False)
sketch12.addConstraint([
    Sketcher.Constraint("Coincident", 0, 2, 1, 1),
    Sketcher.Constraint("Coincident", 1, 2, 2, 1),
    Sketcher.Constraint("Coincident", 2, 2, 3, 1),
    Sketcher.Constraint("Coincident", 3, 2, 4, 1),
    Sketcher.Constraint("Coincident", 4, 2, 5, 1),
    Sketcher.Constraint("Coincident", 5, 2, 0, 1),
    Sketcher.Constraint("Parallel", 0, 3),
    Sketcher.Constraint("Parallel", 1, 4),
    Sketcher.Constraint("Parallel", 2, 5),
    Sketcher.Constraint("Equal", 0, 1),
    Sketcher.Constraint("Equal", 1, 2),
    Sketcher.Constraint("Equal", 2, 3),
    Sketcher.Constraint("DistanceX", 1, 2, 4, 2, Q("6.686098 mm")),
    Sketcher.Constraint("DistanceX", -1, 1, 0, 2, Q("85.68987 mm")),
    Sketcher.Constraint("DistanceY", -1, 1, 0, 2, Q("23.645269 mm")),
    Sketcher.Constraint("DistanceX", -1, 1, 1, 2, Q("76.656951 mm")),
    Sketcher.Constraint("DistanceX", -1, 1, 2, 2, Q("70.96708 mm")),
    Sketcher.Constraint("DistanceY", -1, 1, 3, 2, Q("9.354731 mm")),
])
pad9 = body.newObject("PartDesign::Pad", "Pad008")
pad9.Profile = sketch12
pad9.Length = 4

sketch13 = body.newObject("Sketcher::SketchObject", "Sketch012")
sketch13.AttachmentSupport = (doc.getObject("YZ_Plane"), [""])
sketch13.MapMode = "FlatFace"
sketch13.AttachmentOffset = App.Placement(V(0, 0, 62.666822), App.Rotation())
sketch13.addGeometry(Part.Circle(V(-65, 16, 0), V(0, 0, 1), 12), False)
sketch13.addConstraint([
    Sketcher.Constraint("Diameter", 0, Q("23 mm")),
    Sketcher.Constraint("DistanceX", 0, 3, -1, 1, Q("65 mm")),
    Sketcher.Constraint("DistanceY", -1, 1, 0, 3, Q("16.5 mm")),
])
pocket4 = body.newObject("PartDesign::Pocket", "Pocket003")
pocket4.Profile = sketch13
pocket4.Length = 63.333644

doc.recompute()
